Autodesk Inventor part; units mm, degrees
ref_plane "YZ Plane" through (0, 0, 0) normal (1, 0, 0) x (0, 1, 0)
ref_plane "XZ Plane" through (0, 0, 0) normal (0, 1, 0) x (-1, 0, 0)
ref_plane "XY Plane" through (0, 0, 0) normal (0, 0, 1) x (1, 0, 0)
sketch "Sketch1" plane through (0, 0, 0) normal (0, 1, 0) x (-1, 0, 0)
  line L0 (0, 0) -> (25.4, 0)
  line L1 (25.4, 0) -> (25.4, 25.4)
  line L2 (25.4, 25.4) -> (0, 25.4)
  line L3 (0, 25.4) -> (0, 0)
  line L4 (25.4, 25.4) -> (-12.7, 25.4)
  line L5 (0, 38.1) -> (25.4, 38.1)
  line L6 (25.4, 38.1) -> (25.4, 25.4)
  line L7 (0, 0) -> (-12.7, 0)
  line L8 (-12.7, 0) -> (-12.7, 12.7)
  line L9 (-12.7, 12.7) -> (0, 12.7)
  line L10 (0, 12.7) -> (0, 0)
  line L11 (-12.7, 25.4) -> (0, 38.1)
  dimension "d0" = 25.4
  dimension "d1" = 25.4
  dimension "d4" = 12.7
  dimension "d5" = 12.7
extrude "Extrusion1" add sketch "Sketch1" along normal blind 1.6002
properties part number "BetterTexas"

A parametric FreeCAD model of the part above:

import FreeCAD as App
import Part
import Sketcher
Q = App.Units.Quantity


def add_polygon(sketch, points):
    """Adds a closed chain of lines whose ends are joined by coincident constraints."""
    first, n = sketch.GeometryCount, len(points)
    for a, b in zip(points, points[1:] + points[:1]):
        sketch.addGeometry(Part.LineSegment(App.Vector(*a, 0), App.Vector(*b, 0)), False)
    for i in range(n):
        sketch.addConstraint(Sketcher.Constraint("Coincident", first + i, 2, first + (i + 1) % n, 1))

doc = App.newDocument("Part")
body = doc.addObject("PartDesign::Body", "Body")

# Sketch on XZ plane
sketch1 = doc.addObject("Sketcher::SketchObject", "Sketch")
body.addObject(sketch1)
sketch1.AttachmentSupport = (doc.XZ_Plane, [""])
sketch1.MapMode = "FlatFace"
add_polygon(sketch1, [(0, 25), (0, 13), (13, 13), (13, 0), (-25, 0), (-25, 38), (0, 38), (13, 25)])  # lines 0-7
sketch1.addConstraint(Sketcher.Constraint("Vertical", 0))
sketch1.addConstraint(Sketcher.Constraint("Horizontal", 1))
sketch1.addConstraint(Sketcher.Constraint("Vertical", 2))
sketch1.addConstraint(Sketcher.Constraint("Horizontal", 3))
sketch1.addConstraint(Sketcher.Constraint("Vertical", 4))
sketch1.addConstraint(Sketcher.Constraint("Horizontal", 5))
sketch1.addConstraint(Sketcher.Constraint("Horizontal", 7))
sketch1.addConstraint(Sketcher.Constraint("PointOnObject", 0, 2, -2))
sketch1.addConstraint(Sketcher.Constraint("PointOnObject", 2, 2, -1))
sketch1.addConstraint(Sketcher.Constraint("PointOnObject", 5, 2, -2))
sketch1.addConstraint(Sketcher.Constraint("Vertical", 2, 2, 6, 2))
sketch1.addConstraint(Sketcher.Constraint("Equal", 7, 0))
sketch1.addConstraint(Sketcher.Constraint("Equal", 0, 2))
sketch1.addConstraint(Sketcher.Constraint("Equal", 3, 4))
sketch1.addConstraint(Sketcher.Constraint("DistanceX", 5, 1, 5, 2, Q("1 in")))
sketch1.addConstraint(Sketcher.Constraint("DistanceX", 1, 1, 1, 2, Q("0.5 in")))
pad1 = doc.addObject("PartDesign::Pad", "Pad")
body.addObject(pad1)
pad1.Profile = sketch1
pad1.Length = Q("0.063 in")
pad1.Reversed = True

doc.recompute()
